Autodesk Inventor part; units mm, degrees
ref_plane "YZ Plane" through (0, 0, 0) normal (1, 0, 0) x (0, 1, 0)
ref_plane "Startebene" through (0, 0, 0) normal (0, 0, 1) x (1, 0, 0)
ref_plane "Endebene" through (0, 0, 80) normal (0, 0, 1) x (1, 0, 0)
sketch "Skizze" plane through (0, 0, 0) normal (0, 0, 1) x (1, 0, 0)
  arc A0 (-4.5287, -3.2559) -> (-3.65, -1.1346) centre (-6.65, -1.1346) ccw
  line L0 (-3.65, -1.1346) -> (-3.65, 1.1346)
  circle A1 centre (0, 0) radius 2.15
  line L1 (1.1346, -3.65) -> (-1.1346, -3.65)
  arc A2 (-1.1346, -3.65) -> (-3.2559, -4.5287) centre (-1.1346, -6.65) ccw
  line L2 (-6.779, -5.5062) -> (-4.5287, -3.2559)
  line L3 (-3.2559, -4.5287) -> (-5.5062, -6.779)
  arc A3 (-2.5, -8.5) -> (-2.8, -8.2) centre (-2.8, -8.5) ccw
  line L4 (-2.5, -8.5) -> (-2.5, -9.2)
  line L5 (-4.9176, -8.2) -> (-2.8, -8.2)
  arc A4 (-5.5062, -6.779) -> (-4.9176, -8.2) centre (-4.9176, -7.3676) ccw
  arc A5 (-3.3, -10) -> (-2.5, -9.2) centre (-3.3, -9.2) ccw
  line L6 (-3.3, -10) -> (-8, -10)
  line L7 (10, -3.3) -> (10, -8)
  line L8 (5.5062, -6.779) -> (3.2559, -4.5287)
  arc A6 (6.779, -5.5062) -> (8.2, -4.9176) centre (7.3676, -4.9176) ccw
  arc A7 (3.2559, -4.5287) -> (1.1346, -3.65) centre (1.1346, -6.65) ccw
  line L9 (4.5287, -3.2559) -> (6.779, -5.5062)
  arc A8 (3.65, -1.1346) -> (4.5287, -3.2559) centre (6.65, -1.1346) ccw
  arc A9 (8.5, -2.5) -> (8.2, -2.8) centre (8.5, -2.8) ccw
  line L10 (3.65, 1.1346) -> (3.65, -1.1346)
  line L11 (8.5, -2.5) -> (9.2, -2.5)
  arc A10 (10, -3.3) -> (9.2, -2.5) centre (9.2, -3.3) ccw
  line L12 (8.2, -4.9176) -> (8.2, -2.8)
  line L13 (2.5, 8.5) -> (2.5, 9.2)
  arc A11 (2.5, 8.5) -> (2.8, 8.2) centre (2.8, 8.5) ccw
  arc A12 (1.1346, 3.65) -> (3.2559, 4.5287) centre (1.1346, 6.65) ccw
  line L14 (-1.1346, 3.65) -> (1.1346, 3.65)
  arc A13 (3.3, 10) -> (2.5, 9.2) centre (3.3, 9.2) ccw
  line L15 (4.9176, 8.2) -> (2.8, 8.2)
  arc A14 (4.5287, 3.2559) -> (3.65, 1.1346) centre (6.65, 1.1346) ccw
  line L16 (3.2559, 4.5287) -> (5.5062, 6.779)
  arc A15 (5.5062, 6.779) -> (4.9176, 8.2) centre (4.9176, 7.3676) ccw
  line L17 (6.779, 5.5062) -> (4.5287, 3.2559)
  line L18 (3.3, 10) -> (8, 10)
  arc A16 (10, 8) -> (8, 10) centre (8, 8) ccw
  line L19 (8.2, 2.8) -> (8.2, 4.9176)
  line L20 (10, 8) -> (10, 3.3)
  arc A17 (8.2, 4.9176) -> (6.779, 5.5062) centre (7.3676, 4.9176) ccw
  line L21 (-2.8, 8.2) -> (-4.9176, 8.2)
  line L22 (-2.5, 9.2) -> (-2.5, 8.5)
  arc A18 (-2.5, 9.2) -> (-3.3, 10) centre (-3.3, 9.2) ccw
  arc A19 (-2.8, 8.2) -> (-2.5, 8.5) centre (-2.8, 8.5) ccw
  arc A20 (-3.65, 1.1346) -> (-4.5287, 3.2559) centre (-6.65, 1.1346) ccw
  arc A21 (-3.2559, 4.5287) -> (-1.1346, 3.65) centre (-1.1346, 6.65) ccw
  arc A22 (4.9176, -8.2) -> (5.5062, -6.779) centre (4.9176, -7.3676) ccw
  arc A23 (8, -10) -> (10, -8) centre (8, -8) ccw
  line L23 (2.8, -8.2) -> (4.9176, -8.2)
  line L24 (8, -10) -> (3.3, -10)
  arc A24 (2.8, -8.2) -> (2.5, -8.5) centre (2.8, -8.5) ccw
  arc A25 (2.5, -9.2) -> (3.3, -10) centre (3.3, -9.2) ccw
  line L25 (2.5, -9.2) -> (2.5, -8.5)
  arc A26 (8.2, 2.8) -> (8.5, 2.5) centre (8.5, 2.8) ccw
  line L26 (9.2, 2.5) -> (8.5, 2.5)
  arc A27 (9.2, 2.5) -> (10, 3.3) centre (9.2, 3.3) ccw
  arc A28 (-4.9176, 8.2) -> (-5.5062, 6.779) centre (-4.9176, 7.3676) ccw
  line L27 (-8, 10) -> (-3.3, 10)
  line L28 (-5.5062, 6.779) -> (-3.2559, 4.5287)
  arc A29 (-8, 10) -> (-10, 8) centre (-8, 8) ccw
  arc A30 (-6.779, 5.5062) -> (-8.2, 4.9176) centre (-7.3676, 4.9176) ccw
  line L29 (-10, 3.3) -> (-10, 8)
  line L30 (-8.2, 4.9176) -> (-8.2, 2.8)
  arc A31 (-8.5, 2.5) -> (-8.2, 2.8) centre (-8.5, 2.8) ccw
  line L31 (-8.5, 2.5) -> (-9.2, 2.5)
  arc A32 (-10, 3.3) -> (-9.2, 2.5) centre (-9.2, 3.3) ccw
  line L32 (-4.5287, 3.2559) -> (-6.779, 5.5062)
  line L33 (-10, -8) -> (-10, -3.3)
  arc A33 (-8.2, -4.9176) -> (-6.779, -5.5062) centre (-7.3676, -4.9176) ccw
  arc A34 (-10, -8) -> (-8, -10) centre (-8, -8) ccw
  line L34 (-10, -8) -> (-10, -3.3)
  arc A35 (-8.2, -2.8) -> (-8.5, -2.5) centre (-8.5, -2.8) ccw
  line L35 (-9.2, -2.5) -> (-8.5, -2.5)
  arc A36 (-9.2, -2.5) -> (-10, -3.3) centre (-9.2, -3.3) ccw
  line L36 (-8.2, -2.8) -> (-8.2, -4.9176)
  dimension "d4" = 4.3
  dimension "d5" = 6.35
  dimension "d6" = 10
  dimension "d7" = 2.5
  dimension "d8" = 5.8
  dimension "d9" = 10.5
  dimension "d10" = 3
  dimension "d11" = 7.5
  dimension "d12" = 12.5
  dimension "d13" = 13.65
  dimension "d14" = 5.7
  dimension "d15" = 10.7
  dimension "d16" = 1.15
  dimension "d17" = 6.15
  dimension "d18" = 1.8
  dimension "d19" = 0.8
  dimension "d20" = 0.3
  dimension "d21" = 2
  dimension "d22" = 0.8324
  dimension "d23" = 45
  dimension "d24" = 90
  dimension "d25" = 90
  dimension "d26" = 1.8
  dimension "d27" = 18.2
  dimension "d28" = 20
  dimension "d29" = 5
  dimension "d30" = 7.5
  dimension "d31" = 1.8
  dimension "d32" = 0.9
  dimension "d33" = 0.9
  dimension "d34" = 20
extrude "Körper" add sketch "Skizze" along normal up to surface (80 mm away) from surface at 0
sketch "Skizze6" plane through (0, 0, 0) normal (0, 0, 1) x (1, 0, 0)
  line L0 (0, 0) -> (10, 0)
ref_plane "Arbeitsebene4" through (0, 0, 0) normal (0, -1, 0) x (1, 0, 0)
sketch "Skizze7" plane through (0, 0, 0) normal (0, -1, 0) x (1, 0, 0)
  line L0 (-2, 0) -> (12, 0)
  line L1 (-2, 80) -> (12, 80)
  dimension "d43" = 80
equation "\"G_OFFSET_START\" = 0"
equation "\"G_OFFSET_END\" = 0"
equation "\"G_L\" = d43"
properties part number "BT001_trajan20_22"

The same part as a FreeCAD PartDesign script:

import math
import FreeCAD as App
import Part
import Sketcher
from FreeCAD import Vector

doc = App.newDocument("Part")
params = doc.addObject("Spreadsheet::Sheet", "Params")
for row, (alias, value) in enumerate([
    ("sketch1_radius", "3 mm"),
    ("sketch1_radius2", "2 mm"),
    ("sketch1_diameter", "4.3 mm"),
    ("sketch1_radius3", "0.3 mm"),
    ("sketch1_radius4", "0.8 mm"),
    ("pad1_length", "80 mm"),
], start=1):
    params.set(f"A{row}", alias)
    params.set(f"B{row}", "=" + value)
    params.setAlias(f"B{row}", alias)

body = doc.addObject("PartDesign::Body", "Body")

# Sketch on XY plane
sketch1 = doc.addObject("Sketcher::SketchObject", "Sketch")
body.addObject(sketch1)
sketch1.AttachmentSupport = (doc.XY_Plane, [""])
sketch1.MapMode = "FlatFace"
sketch1.addGeometry([
    Part.ArcOfCircle(Part.Circle(Vector(-6.65, -1.1346, 0), Vector(0, 0, 1), 2.999971), math.radians(-45), math.radians(0)),  # 0
    Part.LineSegment(Vector(-4.5287, -3.2559, 0), Vector(-6.779, -5.5062, 0)),  # 1
    Part.ArcOfCircle(Part.Circle(Vector(-7.3676, -4.9176, 0), Vector(0, 0, 1), 0.8324), math.radians(180), math.radians(315)),  # 2
    Part.LineSegment(Vector(-8.2, -4.9176, 0), Vector(-8.2, -2.8, 0)),  # 3
    Part.ArcOfCircle(Part.Circle(Vector(-8.5, -2.8, 0), Vector(0, 0, 1), 0.3), math.radians(0), math.radians(90)),  # 4
    Part.LineSegment(Vector(-8.5, -2.5, 0), Vector(-9.2, -2.5, 0)),  # 5
    Part.ArcOfCircle(Part.Circle(Vector(-9.2, -3.3, 0), Vector(0, 0, 1), 0.8), math.radians(90), math.radians(180)),  # 6
    Part.LineSegment(Vector(-10, -3.3, 0), Vector(-10, -8, 0)),  # 7
    Part.ArcOfCircle(Part.Circle(Vector(-8, -8, 0), Vector(0, 0, 1), 2), math.radians(180), math.radians(270)),  # 8
    Part.LineSegment(Vector(-8, -10, 0), Vector(-3.3, -10, 0)),  # 9
    Part.ArcOfCircle(Part.Circle(Vector(-3.3, -9.2, 0), Vector(0, 0, 1), 0.8), math.radians(-90), math.radians(0)),  # 10
    Part.LineSegment(Vector(-2.5, -9.2, 0), Vector(-2.5, -8.5, 0)),  # 11
    Part.ArcOfCircle(Part.Circle(Vector(-2.8, -8.5, 0), Vector(0, 0, 1), 0.3), math.radians(0), math.radians(90)),  # 12
    Part.LineSegment(Vector(-2.8, -8.2, 0), Vector(-4.9176, -8.2, 0)),  # 13
    Part.ArcOfCircle(Part.Circle(Vector(-4.9176, -7.3676, 0), Vector(0, 0, 1), 0.832406), math.radians(135), math.radians(270)),  # 14
    Part.LineSegment(Vector(-5.5062, -6.779, 0), Vector(-3.2559, -4.5287, 0)),  # 15
    Part.ArcOfCircle(Part.Circle(Vector(-1.1346, -6.65, 0), Vector(0, 0, 1), 3), math.radians(90), math.radians(135)),  # 16
    Part.LineSegment(Vector(-1.1346, -3.65, 0), Vector(1.1346, -3.65, 0)),  # 17
    Part.ArcOfCircle(Part.Circle(Vector(1.1346, -6.65, 0), Vector(0, 0, 1), 2.999971), math.radians(45), math.radians(90)),  # 18
    Part.LineSegment(Vector(3.2559, -4.5287, 0), Vector(5.5062, -6.779, 0)),  # 19
    Part.ArcOfCircle(Part.Circle(Vector(4.9176, -7.3676, 0), Vector(0, 0, 1), 0.8324), math.radians(-90), math.radians(45)),  # 20
    Part.LineSegment(Vector(4.9176, -8.2, 0), Vector(2.8, -8.2, 0)),  # 21
    Part.ArcOfCircle(Part.Circle(Vector(2.8, -8.5, 0), Vector(0, 0, 1), 0.3), math.radians(90), math.radians(180)),  # 22
    Part.LineSegment(Vector(2.5, -8.5, 0), Vector(2.5, -9.2, 0)),  # 23
    Part.ArcOfCircle(Part.Circle(Vector(3.3, -9.2, 0), Vector(0, 0, 1), 0.8), math.radians(180), math.radians(270)),  # 24
    Part.LineSegment(Vector(3.3, -10, 0), Vector(8, -10, 0)),  # 25
    Part.ArcOfCircle(Part.Circle(Vector(8, -8, 0), Vector(0, 0, 1), 2), math.radians(-90), math.radians(0)),  # 26
    Part.LineSegment(Vector(10, -8, 0), Vector(10, -3.3, 0)),  # 27
    Part.ArcOfCircle(Part.Circle(Vector(9.2, -3.3, 0), Vector(0, 0, 1), 0.8), math.radians(0), math.radians(90)),  # 28
    Part.LineSegment(Vector(9.2, -2.5, 0), Vector(8.5, -2.5, 0)),  # 29
    Part.ArcOfCircle(Part.Circle(Vector(8.5, -2.8, 0), Vector(0, 0, 1), 0.3), math.radians(90), math.radians(180)),  # 30
    Part.LineSegment(Vector(8.2, -2.8, 0), Vector(8.2, -4.9176, 0)),  # 31
    Part.ArcOfCircle(Part.Circle(Vector(7.3676, -4.9176, 0), Vector(0, 0, 1), 0.832406), math.radians(-135), math.radians(0)),  # 32
    Part.LineSegment(Vector(6.779, -5.5062, 0), Vector(4.5287, -3.2559, 0)),  # 33
    Part.ArcOfCircle(Part.Circle(Vector(6.65, -1.1346, 0), Vector(0, 0, 1), 3), math.radians(180), math.radians(225)),  # 34
    Part.LineSegment(Vector(3.65, -1.1346, 0), Vector(3.65, 1.1346, 0)),  # 35
    Part.ArcOfCircle(Part.Circle(Vector(6.65, 1.1346, 0), Vector(0, 0, 1), 2.999971), math.radians(135), math.radians(180)),  # 36
    Part.LineSegment(Vector(4.5287, 3.2559, 0), Vector(6.779, 5.5062, 0)),  # 37
    Part.ArcOfCircle(Part.Circle(Vector(7.3676, 4.9176, 0), Vector(0, 0, 1), 0.8324), math.radians(0), math.radians(135)),  # 38
    Part.LineSegment(Vector(8.2, 4.9176, 0), Vector(8.2, 2.8, 0)),  # 39
    Part.ArcOfCircle(Part.Circle(Vector(8.5, 2.8, 0), Vector(0, 0, 1), 0.3), math.radians(180), math.radians(270)),  # 40
    Part.LineSegment(Vector(8.5, 2.5, 0), Vector(9.2, 2.5, 0)),  # 41
    Part.ArcOfCircle(Part.Circle(Vector(9.2, 3.3, 0), Vector(0, 0, 1), 0.8), math.radians(-90), math.radians(0)),  # 42
    Part.LineSegment(Vector(10, 3.3, 0), Vector(10, 8, 0)),  # 43
    Part.ArcOfCircle(Part.Circle(Vector(8, 8, 0), Vector(0, 0, 1), 2), math.radians(0), math.radians(90)),  # 44
    Part.LineSegment(Vector(8, 10, 0), Vector(3.3, 10, 0)),  # 45
    Part.ArcOfCircle(Part.Circle(Vector(3.3, 9.2, 0), Vector(0, 0, 1), 0.8), math.radians(90), math.radians(180)),  # 46
    Part.LineSegment(Vector(2.5, 9.2, 0), Vector(2.5, 8.5, 0)),  # 47
    Part.ArcOfCircle(Part.Circle(Vector(2.8, 8.5, 0), Vector(0, 0, 1), 0.3), math.radians(180), math.radians(270)),  # 48
    Part.LineSegment(Vector(2.8, 8.2, 0), Vector(4.9176, 8.2, 0)),  # 49
    Part.ArcOfCircle(Part.Circle(Vector(4.9176, 7.3676, 0), Vector(0, 0, 1), 0.832406), math.radians(-45), math.radians(90)),  # 50
    Part.LineSegment(Vector(5.5062, 6.779, 0), Vector(3.2559, 4.5287, 0)),  # 51
    Part.ArcOfCircle(Part.Circle(Vector(1.1346, 6.65, 0), Vector(0, 0, 1), 3), math.radians(-90), math.radians(-45)),  # 52
    Part.LineSegment(Vector(1.1346, 3.65, 0), Vector(-1.1346, 3.65, 0)),  # 53
    Part.ArcOfCircle(Part.Circle(Vector(-1.1346, 6.65, 0), Vector(0, 0, 1), 2.999971), math.radians(-135), math.radians(-90)),  # 54
    Part.LineSegment(Vector(-3.2559, 4.5287, 0), Vector(-5.5062, 6.779, 0)),  # 55
    Part.ArcOfCircle(Part.Circle(Vector(-4.9176, 7.3676, 0), Vector(0, 0, 1), 0.8324), math.radians(90), math.radians(225)),  # 56
    Part.LineSegment(Vector(-4.9176, 8.2, 0), Vector(-2.8, 8.2, 0)),  # 57
    Part.ArcOfCircle(Part.Circle(Vector(-2.8, 8.5, 0), Vector(0, 0, 1), 0.3), math.radians(-90), math.radians(0)),  # 58
    Part.LineSegment(Vector(-2.5, 8.5, 0), Vector(-2.5, 9.2, 0)),  # 59
    Part.ArcOfCircle(Part.Circle(Vector(-3.3, 9.2, 0), Vector(0, 0, 1), 0.8), math.radians(0), math.radians(90)),  # 60
    Part.LineSegment(Vector(-3.3, 10, 0), Vector(-8, 10, 0)),  # 61
    Part.ArcOfCircle(Part.Circle(Vector(-8, 8, 0), Vector(0, 0, 1), 2), math.radians(90), math.radians(180)),  # 62
    Part.LineSegment(Vector(-10, 8, 0), Vector(-10, 3.3, 0)),  # 63
    Part.ArcOfCircle(Part.Circle(Vector(-9.2, 3.3, 0), Vector(0, 0, 1), 0.8), math.radians(180), math.radians(270)),  # 64
    Part.LineSegment(Vector(-9.2, 2.5, 0), Vector(-8.5, 2.5, 0)),  # 65
    Part.ArcOfCircle(Part.Circle(Vector(-8.5, 2.8, 0), Vector(0, 0, 1), 0.3), math.radians(-90), math.radians(0)),  # 66
    Part.LineSegment(Vector(-8.2, 2.8, 0), Vector(-8.2, 4.9176, 0)),  # 67
    Part.ArcOfCircle(Part.Circle(Vector(-7.3676, 4.9176, 0), Vector(0, 0, 1), 0.832406), math.radians(45), math.radians(180)),  # 68
    Part.LineSegment(Vector(-6.779, 5.5062, 0), Vector(-4.5287, 3.2559, 0)),  # 69
    Part.ArcOfCircle(Part.Circle(Vector(-6.65, 1.1346, 0), Vector(0, 0, 1), 3), math.radians(0), math.radians(45)),  # 70
    Part.LineSegment(Vector(-3.65, 1.1346, 0), Vector(-3.65, -1.1346, 0)),  # 71
    Part.Circle(Vector(0, 0, 0), Vector(0, 0, 1), 2.15),  # 72
], False)
sketch1.addConstraint([
    Sketcher.Constraint("Tangent", 0, 1, 1, 1),
    Sketcher.Constraint("Tangent", 1, 2, 2, 2),
    Sketcher.Constraint("Tangent", 2, 1, 3, 1),
    Sketcher.Constraint("Tangent", 3, 2, 4, 1),
    Sketcher.Constraint("Tangent", 4, 2, 5, 1),
    Sketcher.Constraint("Tangent", 5, 2, 6, 1),
    Sketcher.Constraint("Tangent", 6, 2, 7, 1),
    Sketcher.Constraint("Tangent", 7, 2, 8, 1),
    Sketcher.Constraint("Tangent", 8, 2, 9, 1),
    Sketcher.Constraint("Tangent", 9, 2, 10, 1),
    Sketcher.Constraint("Tangent", 10, 2, 11, 1),
    Sketcher.Constraint("Tangent", 11, 2, 12, 1),
    Sketcher.Constraint("Tangent", 12, 2, 13, 1),
    Sketcher.Constraint("Tangent", 13, 2, 14, 2),
    Sketcher.Constraint("Tangent", 14, 1, 15, 1),
    Sketcher.Constraint("Tangent", 15, 2, 16, 2),
    Sketcher.Constraint("Tangent", 16, 1, 17, 1),
    Sketcher.Constraint("Tangent", 17, 2, 18, 2),
    Sketcher.Constraint("Tangent", 18, 1, 19, 1),
    Sketcher.Constraint("Tangent", 19, 2, 20, 2),
    Sketcher.Constraint("Tangent", 20, 1, 21, 1),
    Sketcher.Constraint("Tangent", 21, 2, 22, 1),
    Sketcher.Constraint("Tangent", 22, 2, 23, 1),
    Sketcher.Constraint("Tangent", 23, 2, 24, 1),
    Sketcher.Constraint("Tangent", 24, 2, 25, 1),
    Sketcher.Constraint("Tangent", 25, 2, 26, 1),
    Sketcher.Constraint("Tangent", 26, 2, 27, 1),
    Sketcher.Constraint("Tangent", 27, 2, 28, 1),
    Sketcher.Constraint("Tangent", 28, 2, 29, 1),
    Sketcher.Constraint("Tangent", 29, 2, 30, 1),
    Sketcher.Constraint("Tangent", 30, 2, 31, 1),
    Sketcher.Constraint("Tangent", 31, 2, 32, 2),
    Sketcher.Constraint("Tangent", 32, 1, 33, 1),
    Sketcher.Constraint("Tangent", 33, 2, 34, 2),
    Sketcher.Constraint("Tangent", 34, 1, 35, 1),
    Sketcher.Constraint("Tangent", 35, 2, 36, 2),
    Sketcher.Constraint("Tangent", 36, 1, 37, 1),
    Sketcher.Constraint("Tangent", 37, 2, 38, 2),
    Sketcher.Constraint("Tangent", 38, 1, 39, 1),
    Sketcher.Constraint("Tangent", 39, 2, 40, 1),
    Sketcher.Constraint("Tangent", 40, 2, 41, 1),
    Sketcher.Constraint("Tangent", 41, 2, 42, 1),
    Sketcher.Constraint("Tangent", 42, 2, 43, 1),
    Sketcher.Constraint("Tangent", 43, 2, 44, 1),
    Sketcher.Constraint("Tangent", 44, 2, 45, 1),
    Sketcher.Constraint("Tangent", 45, 2, 46, 1),
    Sketcher.Constraint("Tangent", 46, 2, 47, 1),
    Sketcher.Constraint("Tangent", 47, 2, 48, 1),
    Sketcher.Constraint("Tangent", 48, 2, 49, 1),
    Sketcher.Constraint("Tangent", 49, 2, 50, 2),
    Sketcher.Constraint("Tangent", 50, 1, 51, 1),
    Sketcher.Constraint("Tangent", 51, 2, 52, 2),
    Sketcher.Constraint("Tangent", 52, 1, 53, 1),
    Sketcher.Constraint("Tangent", 53, 2, 54, 2),
    Sketcher.Constraint("Tangent", 54, 1, 55, 1),
    Sketcher.Constraint("Tangent", 55, 2, 56, 2),
    Sketcher.Constraint("Tangent", 56, 1, 57, 1),
    Sketcher.Constraint("Tangent", 57, 2, 58, 1),
    Sketcher.Constraint("Tangent", 58, 2, 59, 1),
    Sketcher.Constraint("Tangent", 59, 2, 60, 1),
    Sketcher.Constraint("Tangent", 60, 2, 61, 1),
    Sketcher.Constraint("Tangent", 61, 2, 62, 1),
    Sketcher.Constraint("Tangent", 62, 2, 63, 1),
    Sketcher.Constraint("Tangent", 63, 2, 64, 1),
    Sketcher.Constraint("Tangent", 64, 2, 65, 1),
    Sketcher.Constraint("Tangent", 65, 2, 66, 1),
    Sketcher.Constraint("Tangent", 66, 2, 67, 1),
    Sketcher.Constraint("Tangent", 67, 2, 68, 2),
    Sketcher.Constraint("Tangent", 68, 1, 69, 1),
    Sketcher.Constraint("Tangent", 69, 2, 70, 2),
    Sketcher.Constraint("Tangent", 70, 1, 71, 1),
    Sketcher.Constraint("Tangent", 71, 2, 0, 2),
    Sketcher.Constraint("Vertical", 3),
    Sketcher.Constraint("Horizontal", 5),
    Sketcher.Constraint("Vertical", 7),
    Sketcher.Constraint("Horizontal", 9),
    Sketcher.Constraint("Vertical", 11),
    Sketcher.Constraint("Horizontal", 13),
    Sketcher.Constraint("Horizontal", 17),
    Sketcher.Constraint("Horizontal", 21),
    Sketcher.Constraint("Vertical", 23),
    Sketcher.Constraint("Horizontal", 25),
    Sketcher.Constraint("Vertical", 27),
    Sketcher.Constraint("Horizontal", 29),
    Sketcher.Constraint("Vertical", 31),
    Sketcher.Constraint("Vertical", 35),
    Sketcher.Constraint("Vertical", 39),
    Sketcher.Constraint("Horizontal", 41),
    Sketcher.Constraint("Vertical", 43),
    Sketcher.Constraint("Horizontal", 45),
    Sketcher.Constraint("Vertical", 47),
    Sketcher.Constraint("Horizontal", 49),
    Sketcher.Constraint("Horizontal", 53),
    Sketcher.Constraint("Horizontal", 57),
    Sketcher.Constraint("Vertical", 59),
    Sketcher.Constraint("Horizontal", 61),
    Sketcher.Constraint("Vertical", 63),
    Sketcher.Constraint("Horizontal", 65),
    Sketcher.Constraint("Vertical", 67),
    Sketcher.Constraint("Vertical", 71),
    Sketcher.Constraint("Coincident", 72, 3, -1, 1),
    Sketcher.Constraint("Equal", 6, 10),
    Sketcher.Constraint("Equal", 4, 12),
    Sketcher.Constraint("Equal", 2, 14),
    Sketcher.Constraint("Equal", 0, 16),
    Sketcher.Constraint("Equal", 16, 18),
    Sketcher.Constraint("Equal", 14, 20),
    Sketcher.Constraint("Equal", 12, 22),
    Sketcher.Constraint("Equal", 10, 24),
    Sketcher.Constraint("Equal", 8, 26),
    Sketcher.Constraint("Equal", 24, 28),
    Sketcher.Constraint("Equal", 22, 30),
    Sketcher.Constraint("Equal", 20, 32),
    Sketcher.Constraint("Equal", 18, 34),
    Sketcher.Constraint("Equal", 34, 36),
    Sketcher.Constraint("Equal", 32, 38),
    Sketcher.Constraint("Equal", 30, 40),
    Sketcher.Constraint("Equal", 28, 42),
    Sketcher.Constraint("Equal", 26, 44),
    Sketcher.Constraint("Equal", 42, 46),
    Sketcher.Constraint("Equal", 40, 48),
    Sketcher.Constraint("Equal", 38, 50),
    Sketcher.Constraint("Equal", 36, 52),
    Sketcher.Constraint("Equal", 52, 54),
    Sketcher.Constraint("Equal", 50, 56),
    Sketcher.Constraint("Equal", 48, 58),
    Sketcher.Constraint("Equal", 46, 60),
    Sketcher.Constraint("Equal", 44, 62),
    Sketcher.Constraint("Equal", 60, 64),
    Sketcher.Constraint("Equal", 58, 66),
    Sketcher.Constraint("Equal", 56, 68),
    Sketcher.Constraint("Equal", 54, 70),
    Sketcher.Constraint("Symmetric", 0, 3, 36, 3, -1, 1),
    Sketcher.Constraint("Symmetric", 2, 3, 38, 3, -1, 1),
    Sketcher.Constraint("Symmetric", 6, 3, 42, 3, -1, 1),
    Sketcher.Constraint("Symmetric", 10, 3, 46, 3, -1, 1),
    Sketcher.Constraint("Symmetric", 14, 3, 50, 3, -1, 1),
    Sketcher.Constraint("Symmetric", 16, 3, 52, 3, -1, 1),
    Sketcher.Constraint("Symmetric", 20, 3, 56, 3, -1, 1),
    Sketcher.Constraint("Symmetric", 24, 3, 60, 3, -1, 1),
    Sketcher.Constraint("Symmetric", 28, 3, 64, 3, -1, 1),
    Sketcher.Constraint("Symmetric", 32, 3, 68, 3, -1, 1),
    Sketcher.Constraint("Symmetric", 14, 3, 20, 3, -2),
    Sketcher.Constraint("Symmetric", 10, 3, 24, 3, -2),
    Sketcher.Constraint("Symmetric", 6, 3, 28, 3, -2),
    Sketcher.Constraint("Symmetric", 2, 3, 32, 3, -2),
    Sketcher.Constraint("Parallel", 1, 15),
    Sketcher.Constraint("Perpendicular", 15, 19),
    Sketcher.Constraint("Parallel", 19, 33),
    Sketcher.Constraint("Perpendicular", 51, 55),
    Sketcher.Constraint("Parallel", 55, 69),
    Sketcher.Constraint("Horizontal", 0, 3, 34, 3),
    Sketcher.Constraint("Equal", 57, 3),
    Sketcher.Constraint("Equal", 61, 7),
    Sketcher.Constraint("Equal", 65, 11),
    Sketcher.Constraint("Equal", 53, 35),
    Sketcher.Constraint("Equal", 1, 15),
    Sketcher.Constraint("Radius", 0, 3.0),
    Sketcher.Constraint("Radius", 8, 2.0),
    Sketcher.Constraint("Diameter", 72, 4.3),
    Sketcher.Constraint("Radius", 4, 0.3),
    Sketcher.Constraint("Radius", 6, 0.8),
    Sketcher.Constraint("DistanceX", 6, 2, -1, 1, 10.0),
    Sketcher.Constraint("DistanceY", 4, 2, -1, 1, 2.5),
    Sketcher.Constraint("Radius", 2, 0.8324),
    Sketcher.Constraint("DistanceX", 5, 2, 5, 1, 0.7),
    Sketcher.Constraint("DistanceX", 0, 3, -1, 1, 6.65),
    Sketcher.Constraint("DistanceX", 13, 2, 13, 1, 2.1176),
])
sketch1.setExpression("Constraints[157]", "Params.sketch1_radius")
sketch1.setExpression("Constraints[158]", "Params.sketch1_radius2")
sketch1.setExpression("Constraints[159]", "Params.sketch1_diameter")
sketch1.setExpression("Constraints[160]", "Params.sketch1_radius3")
sketch1.setExpression("Constraints[161]", "Params.sketch1_radius4")
pad1 = doc.addObject("PartDesign::Pad", "Pad")
body.addObject(pad1)
pad1.Profile = sketch1
pad1.setExpression("Length", "Params.pad1_length")

doc.recompute()
